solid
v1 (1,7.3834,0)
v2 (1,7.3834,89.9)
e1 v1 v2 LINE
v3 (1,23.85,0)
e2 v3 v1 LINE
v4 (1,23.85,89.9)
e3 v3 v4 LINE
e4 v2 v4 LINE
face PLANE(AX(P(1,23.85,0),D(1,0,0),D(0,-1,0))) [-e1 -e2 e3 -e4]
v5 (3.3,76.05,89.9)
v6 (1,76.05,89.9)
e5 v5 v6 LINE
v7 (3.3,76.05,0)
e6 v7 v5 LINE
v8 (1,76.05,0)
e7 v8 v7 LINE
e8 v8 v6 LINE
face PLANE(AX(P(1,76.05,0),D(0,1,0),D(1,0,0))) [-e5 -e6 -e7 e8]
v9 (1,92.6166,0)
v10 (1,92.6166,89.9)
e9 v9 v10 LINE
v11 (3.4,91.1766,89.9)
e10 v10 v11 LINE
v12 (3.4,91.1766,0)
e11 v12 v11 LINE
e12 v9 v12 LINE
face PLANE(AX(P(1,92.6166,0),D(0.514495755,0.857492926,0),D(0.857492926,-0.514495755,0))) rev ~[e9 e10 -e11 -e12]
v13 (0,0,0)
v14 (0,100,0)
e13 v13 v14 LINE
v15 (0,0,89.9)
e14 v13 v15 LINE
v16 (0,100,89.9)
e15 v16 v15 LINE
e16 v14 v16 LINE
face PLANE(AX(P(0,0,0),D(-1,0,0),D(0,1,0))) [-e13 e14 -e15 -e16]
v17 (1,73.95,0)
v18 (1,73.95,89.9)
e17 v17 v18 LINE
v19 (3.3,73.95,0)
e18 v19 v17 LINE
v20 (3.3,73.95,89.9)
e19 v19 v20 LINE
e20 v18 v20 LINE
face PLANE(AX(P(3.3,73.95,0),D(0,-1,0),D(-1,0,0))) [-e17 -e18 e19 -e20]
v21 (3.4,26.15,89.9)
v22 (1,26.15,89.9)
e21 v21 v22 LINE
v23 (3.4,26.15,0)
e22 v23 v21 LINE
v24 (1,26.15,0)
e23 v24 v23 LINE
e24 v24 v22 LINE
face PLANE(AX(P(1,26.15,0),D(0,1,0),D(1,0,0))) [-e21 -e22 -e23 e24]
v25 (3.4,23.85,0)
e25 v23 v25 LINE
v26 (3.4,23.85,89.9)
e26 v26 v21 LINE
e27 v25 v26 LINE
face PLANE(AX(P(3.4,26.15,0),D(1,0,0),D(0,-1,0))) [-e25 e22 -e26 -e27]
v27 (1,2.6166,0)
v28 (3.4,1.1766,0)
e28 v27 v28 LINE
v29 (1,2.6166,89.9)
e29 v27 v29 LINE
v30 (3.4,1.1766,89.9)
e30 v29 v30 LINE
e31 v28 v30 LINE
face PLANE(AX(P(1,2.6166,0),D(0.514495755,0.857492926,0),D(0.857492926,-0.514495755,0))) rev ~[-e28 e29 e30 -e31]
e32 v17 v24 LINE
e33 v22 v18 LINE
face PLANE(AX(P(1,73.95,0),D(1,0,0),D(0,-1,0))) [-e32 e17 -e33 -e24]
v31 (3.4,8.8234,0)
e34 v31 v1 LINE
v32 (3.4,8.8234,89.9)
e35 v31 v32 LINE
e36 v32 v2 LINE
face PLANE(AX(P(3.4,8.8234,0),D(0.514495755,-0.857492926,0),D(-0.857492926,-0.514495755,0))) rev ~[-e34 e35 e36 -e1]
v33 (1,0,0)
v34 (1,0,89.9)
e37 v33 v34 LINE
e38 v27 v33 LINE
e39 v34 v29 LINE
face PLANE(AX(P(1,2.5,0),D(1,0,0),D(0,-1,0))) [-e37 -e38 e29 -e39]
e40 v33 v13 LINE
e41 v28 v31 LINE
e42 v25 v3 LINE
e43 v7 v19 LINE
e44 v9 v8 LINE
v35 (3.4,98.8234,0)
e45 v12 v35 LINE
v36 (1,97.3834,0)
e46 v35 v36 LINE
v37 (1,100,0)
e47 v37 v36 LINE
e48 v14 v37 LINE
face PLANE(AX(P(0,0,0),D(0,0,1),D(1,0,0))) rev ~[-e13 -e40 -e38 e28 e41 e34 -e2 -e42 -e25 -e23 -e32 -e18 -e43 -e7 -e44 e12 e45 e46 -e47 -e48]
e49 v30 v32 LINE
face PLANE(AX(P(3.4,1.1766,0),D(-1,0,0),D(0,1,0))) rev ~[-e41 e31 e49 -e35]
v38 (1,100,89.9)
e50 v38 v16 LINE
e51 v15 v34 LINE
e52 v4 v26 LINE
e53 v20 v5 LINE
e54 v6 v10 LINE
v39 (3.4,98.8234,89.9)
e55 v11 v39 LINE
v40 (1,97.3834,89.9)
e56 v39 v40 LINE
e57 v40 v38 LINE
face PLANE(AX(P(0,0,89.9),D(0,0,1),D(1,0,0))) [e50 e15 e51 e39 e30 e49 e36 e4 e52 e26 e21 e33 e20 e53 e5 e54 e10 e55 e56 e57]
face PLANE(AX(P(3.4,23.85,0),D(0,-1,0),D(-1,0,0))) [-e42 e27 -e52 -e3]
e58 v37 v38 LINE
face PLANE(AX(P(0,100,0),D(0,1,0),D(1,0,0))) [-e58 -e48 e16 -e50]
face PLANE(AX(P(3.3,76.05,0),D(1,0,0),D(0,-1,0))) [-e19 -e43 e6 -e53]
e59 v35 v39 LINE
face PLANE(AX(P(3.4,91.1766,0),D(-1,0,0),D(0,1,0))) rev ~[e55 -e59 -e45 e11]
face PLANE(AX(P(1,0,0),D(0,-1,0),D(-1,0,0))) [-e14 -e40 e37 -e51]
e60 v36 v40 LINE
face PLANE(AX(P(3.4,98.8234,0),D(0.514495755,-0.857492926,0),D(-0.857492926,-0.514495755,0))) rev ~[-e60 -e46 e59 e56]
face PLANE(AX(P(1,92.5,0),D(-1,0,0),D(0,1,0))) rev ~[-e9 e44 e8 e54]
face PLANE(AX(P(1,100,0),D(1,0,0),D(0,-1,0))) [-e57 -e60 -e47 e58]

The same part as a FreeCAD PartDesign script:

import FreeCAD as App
import Part
import Sketcher

V = App.Vector


def add_polygon(sketch, points):
    """Adds a closed chain of lines whose ends are joined by coincident constraints."""
    first, n = sketch.GeometryCount, len(points)
    for a, b in zip(points, points[1:] + points[:1]):
        sketch.addGeometry(Part.LineSegment(App.Vector(*a, 0), App.Vector(*b, 0)), False)
    for i in range(n):
        sketch.addConstraint(Sketcher.Constraint("Coincident", first + i, 2, first + (i + 1) % n, 1))

doc = App.newDocument("Part")
params = doc.addObject("Spreadsheet::Sheet", "Params")
for row, (alias, value) in enumerate([
    ("sketch1_width", "1 mm"),
    ("sketch1_height", "100 mm"),
    ("sketch1_height2", "8 mm"),
    ("sketch1_height3", "2.5 mm"),
    ("pad1_length", "90 mm"),
    ("sketch2_width", "2.5 mm"),
    ("pad2_length", "90 mm"),
    ("sketch3_height", "8 mm"),
    ("pocket1_length", "90 mm"),
    ("sketch4_width", "1 mm"),
    ("sketch4_height", "100 mm"),
    ("sketch4_width2", "2.5 mm"),
    ("sketch4_height2", "47.5 mm"),
    ("pocket2_length", "0.1 mm"),
    ("sketch5_height", "0.2 mm"),
    ("sketch5_height2", "0.1 mm"),
    ("sketch5_width", "2.5 mm"),
], start=1):
    params.set(f"A{row}", alias)
    params.set(f"B{row}", "=" + value)
    params.setAlias(f"B{row}", alias)

body = doc.addObject("PartDesign::Body", "Body")

# Sketch on XY plane
sketch1 = body.newObject("Sketcher::SketchObject", "Sketch")
sketch1.AttachmentSupport = (doc.getObject("XY_Plane"), [""])
sketch1.MapMode = "FlatFace"
add_polygon(sketch1, [(0, 100), (0, 0), (1, 0), (1, 2.5), (3.5, 1), (3.5, 9), (1, 7.5), (1, 92.5), (3.5, 91), (3.5, 99), (1, 97.5), (1, 100)])  # lines 0-11
sketch1.addConstraint([
    Sketcher.Constraint("Vertical", 0),
    Sketcher.Constraint("Horizontal", 1),
    Sketcher.Constraint("Vertical", 2),
    Sketcher.Constraint("Vertical", 4),
    Sketcher.Constraint("Vertical", 6),
    Sketcher.Constraint("Vertical", 8),
    Sketcher.Constraint("Vertical", 10),
    Sketcher.Constraint("Horizontal", 11),
    Sketcher.Constraint("Coincident", 0, 2, -1, 1),
    Sketcher.Constraint("Parallel", 3, 7),
    Sketcher.Constraint("Parallel", 5, 9),
    Sketcher.Constraint("Vertical", 2, 2, 5, 2),
    Sketcher.Constraint("Vertical", 4, 2, 7, 2),
    Sketcher.Constraint("Vertical", 6, 2, 9, 2),
    Sketcher.Constraint("Equal", 4, 8),
    Sketcher.Constraint("Equal", 2, 10),
    Sketcher.Constraint("Equal", 3, 5),
    Sketcher.Constraint("DistanceX", 1, 1, 1, 2, 1.0),
    Sketcher.Constraint("DistanceY", 0, 2, 0, 1, 100.0),
    Sketcher.Constraint("DistanceY", 4, 1, 4, 2, 8.0),
    Sketcher.Constraint("DistanceY", 2, 1, 2, 2, 2.5),
    Sketcher.Constraint("DistanceY", -1, 1, 3, 2, 1.0),
    Sketcher.Constraint("DistanceX", 1, 2, 3, 2, 2.5),
])
sketch1.setExpression("Constraints[29]", "Params.sketch1_width")
sketch1.setExpression("Constraints[30]", "Params.sketch1_height")
sketch1.setExpression("Constraints[31]", "Params.sketch1_height2")
sketch1.setExpression("Constraints[32]", "Params.sketch1_height3")
pad1 = body.newObject("PartDesign::Pad", "Pad")
pad1.Profile = sketch1
pad1.setExpression("Length", "Params.pad1_length")

# Sketch on XY plane
sketch2 = body.newObject("Sketcher::SketchObject", "Sketch001")
sketch2.AttachmentSupport = (doc.getObject("XY_Plane"), [""])
sketch2.MapMode = "FlatFace"
add_polygon(sketch2, [(1, 26.2), (1, 23.8), (3.5, 23.8), (3.5, 26.2)])  # lines 0-3
add_polygon(sketch2, [(3.5, 76.2), (1, 76.2), (1, 73.8), (3.5, 73.8)])  # lines 4-7
sketch2.addConstraint([
    Sketcher.Constraint("Vertical", 0),
    Sketcher.Constraint("Horizontal", 1),
    Sketcher.Constraint("Vertical", 2),
    Sketcher.Constraint("Horizontal", 3),
    Sketcher.Constraint("Horizontal", 4),
    Sketcher.Constraint("Vertical", 5),
    Sketcher.Constraint("Horizontal", 6),
    Sketcher.Constraint("Vertical", 7),
    Sketcher.Constraint("Vertical", 3, 2, 4, 2),
    Sketcher.Constraint("Vertical", 2, 2, 6, 2),
    Sketcher.Constraint("Equal", 6, 0),
    Sketcher.Constraint("Equal", 2, 5),
    Sketcher.Constraint("DistanceX", 1, 1, 1, 2, 2.5),
    Sketcher.Constraint("DistanceX", -1, 1, 0, 2, 1.0),
    Sketcher.Constraint("DistanceY", 3, 2, 4, 2, 50.0),
    Sketcher.Constraint("DistanceY", -1, 1, 0, 2, 23.75),
])
sketch2.setExpression("Constraints[20]", "Params.sketch2_width")
pad2 = body.newObject("PartDesign::Pad", "Pad001")
pad2.Profile = sketch2
pad2.setExpression("Length", "Params.pad2_length")

# Sketch on XY plane
sketch3 = body.newObject("Sketcher::SketchObject", "Sketch002")
sketch3.AttachmentSupport = (doc.getObject("XY_Plane"), [""])
sketch3.MapMode = "FlatFace"
add_polygon(sketch3, [(1, 2.62), (1, 2.5), (3.5, 1), (3.5, 9), (1, 7.5), (1, 7.38), (3.4, 8.82), (3.4, 1.18)])  # lines 0-7
add_polygon(sketch3, [(3.5, 99), (1, 97.5), (1, 97.38), (3.4, 98.82), (3.4, 91.18), (1, 92.62), (1, 92.5), (3.5, 91)])  # lines 8-15
sketch3.addConstraint([
    Sketcher.Constraint("Vertical", 0),
    Sketcher.Constraint("Vertical", 2),
    Sketcher.Constraint("Vertical", 4),
    Sketcher.Constraint("Vertical", 6),
    Sketcher.Constraint("Vertical", 9),
    Sketcher.Constraint("Vertical", 11),
    Sketcher.Constraint("Vertical", 13),
    Sketcher.Constraint("Vertical", 15),
    Sketcher.Constraint("Parallel", 3, 5),
    Sketcher.Constraint("Parallel", 1, 7),
    Sketcher.Constraint("Parallel", 5, 8),
    Sketcher.Constraint("Parallel", 8, 10),
    Sketcher.Constraint("Parallel", 7, 12),
    Sketcher.Constraint("Parallel", 12, 14),
    Sketcher.Constraint("Vertical", 0, 2, 3, 2),
    Sketcher.Constraint("Vertical", 7, 2, 8, 2),
    Sketcher.Constraint("Vertical", 6, 2, 10, 2),
    Sketcher.Constraint("Vertical", 9, 2, 12, 2),
    Sketcher.Constraint("Vertical", 2, 2, 14, 2),
    Sketcher.Constraint("Equal", 0, 4),
    Sketcher.Constraint("Equal", 4, 9),
    Sketcher.Constraint("Equal", 6, 11),
    Sketcher.Constraint("Equal", 9, 13),
    Sketcher.Constraint("Equal", 1, 3),
    Sketcher.Constraint("DistanceY", 2, 1, 2, 2, 8.0),
    Sketcher.Constraint("DistanceX", -1, 1, 0, 2, 1.0),
    Sketcher.Constraint("DistanceY", -1, 1, 1, 2, 1.0),
    Sketcher.Constraint("DistanceY", 0, 2, 3, 2, 5.0),
    Sketcher.Constraint("DistanceX", 0, 2, 1, 2, 2.5),
    Sketcher.Constraint("DistanceX", 5, 2, 2, 2, 0.1),
    Sketcher.Constraint("DistanceY", -1, 1, 14, 2, 91.0),
    Sketcher.Constraint("DistanceY", 0, 2, 0, 1, 0.1166),
])
sketch3.setExpression("Constraints[40]", "Params.sketch3_height")
pocket1 = body.newObject("PartDesign::Pocket", "Pocket")
pocket1.Profile = sketch3
pocket1.setExpression("Length", "Params.pocket1_length")
pocket1.Reversed = True

# Sketch on XY plane
sketch4 = body.newObject("Sketcher::SketchObject", "Sketch003")
sketch4.AttachmentSupport = (doc.getObject("XY_Plane"), [""])
sketch4.MapMode = "FlatFace"
sketch4.AttachmentOffset = App.Placement(V(0, 0, 90), App.Rotation())
add_polygon(sketch4, [(3.4, 98.8), (1, 97.4), (1, 100), (0, 100), (0, 0), (1, 0), (1, 2.6), (3.4, 1.2), (3.4, 8.8), (1, 7.4), (1, 23.8), (3.5, 23.8), (3.5, 26.2), (1, 26.2), (1, 73.8), (3.5, 73.8), (3.5, 76.2), (1, 76.2), (1, 92.6), (3.4, 91.2)])  # lines 0-19
sketch4.addConstraint([
    Sketcher.Constraint("Vertical", 1),
    Sketcher.Constraint("Horizontal", 2),
    Sketcher.Constraint("Vertical", 3),
    Sketcher.Constraint("Horizontal", 4),
    Sketcher.Constraint("Vertical", 5),
    Sketcher.Constraint("Vertical", 7),
    Sketcher.Constraint("Vertical", 9),
    Sketcher.Constraint("Horizontal", 10),
    Sketcher.Constraint("Vertical", 11),
    Sketcher.Constraint("Horizontal", 12),
    Sketcher.Constraint("Vertical", 13),
    Sketcher.Constraint("Horizontal", 14),
    Sketcher.Constraint("Vertical", 15),
    Sketcher.Constraint("Horizontal", 16),
    Sketcher.Constraint("Vertical", 17),
    Sketcher.Constraint("Vertical", 19),
    Sketcher.Constraint("Coincident", 3, 2, -1, 1),
    Sketcher.Constraint("Parallel", 0, 8),
    Sketcher.Constraint("Parallel", 6, 18),
    Sketcher.Constraint("Vertical", 1, 2, 4, 2),
    Sketcher.Constraint("Vertical", 5, 2, 8, 2),
    Sketcher.Constraint("Vertical", 9, 2, 12, 2),
    Sketcher.Constraint("Vertical", 11, 2, 14, 2),
    Sketcher.Constraint("Vertical", 13, 2, 16, 2),
    Sketcher.Constraint("Vertical", 7, 2, 18, 2),
    Sketcher.Constraint("Equal", 1, 5),
    Sketcher.Constraint("Equal", 16, 11),
    Sketcher.Constraint("Equal", 11, 15),
    Sketcher.Constraint("Equal", 9, 17),
    Sketcher.Constraint("Equal", 7, 19),
    Sketcher.Constraint("Equal", 0, 6),
    Sketcher.Constraint("DistanceX", 2, 2, 2, 1, 1.0),
    Sketcher.Constraint("DistanceY", 3, 2, 3, 1, 100.0),
    Sketcher.Constraint("DistanceX", 10, 1, 10, 2, 2.5),
    Sketcher.Constraint("DistanceY", 13, 1, 13, 2, 47.5),
    Sketcher.Constraint("DistanceX", -1, 1, 6, 2, 3.4),
    Sketcher.Constraint("DistanceY", 6, 2, 5, 2, 1.44),
    Sketcher.Constraint("DistanceY", 7, 2, 0, 2, 88.56),
    Sketcher.Constraint("DistanceY", 1, 1, 1, 2, 2.6166),
])
sketch4.setExpression("Constraints[51]", "Params.sketch4_width")
sketch4.setExpression("Constraints[52]", "Params.sketch4_height")
sketch4.setExpression("Constraints[53]", "Params.sketch4_width2")
sketch4.setExpression("Constraints[54]", "Params.sketch4_height2")
pocket2 = body.newObject("PartDesign::Pocket", "Pocket001")
pocket2.Profile = sketch4
pocket2.setExpression("Length", "Params.pocket2_length")

# Sketch on XY plane
sketch5 = body.newObject("Sketcher::SketchObject", "Sketch004")
sketch5.AttachmentSupport = (doc.getObject("XY_Plane"), [""])
sketch5.MapMode = "FlatFace"
add_polygon(sketch5, [(1, 76.25), (3.5, 76.25), (3.5, 73.75), (1, 73.75), (1, 73.95), (3.3, 73.95), (3.3, 76.05), (1, 76.05)])  # lines 0-7
add_polygon(sketch5, [(1, 26.25), (3.5, 26.25), (3.5, 23.75), (1, 23.75), (1, 23.85), (3.4, 23.85), (3.4, 26.15), (1, 26.15)])  # lines 8-15
sketch5.addConstraint([
    Sketcher.Constraint("Horizontal", 0),
    Sketcher.Constraint("Vertical", 1),
    Sketcher.Constraint("Horizontal", 2),
    Sketcher.Constraint("Vertical", 3),
    Sketcher.Constraint("Horizontal", 4),
    Sketcher.Constraint("Vertical", 5),
    Sketcher.Constraint("Horizontal", 6),
    Sketcher.Constraint("Vertical", 7),
    Sketcher.Constraint("Horizontal", 8),
    Sketcher.Constraint("Vertical", 9),
    Sketcher.Constraint("Horizontal", 10),
    Sketcher.Constraint("Vertical", 11),
    Sketcher.Constraint("Horizontal", 12),
    Sketcher.Constraint("Vertical", 13),
    Sketcher.Constraint("Horizontal", 14),
    Sketcher.Constraint("Vertical", 15),
    Sketcher.Constraint("Vertical", 3, 2, 6, 2),
    Sketcher.Constraint("Vertical", 1, 2, 8, 2),
    Sketcher.Constraint("Vertical", 7, 2, 10, 2),
    Sketcher.Constraint("Vertical", 11, 2, 14, 2),
    Sketcher.Constraint("Equal", 10, 1),
    Sketcher.Constraint("Equal", 3, 7),
    Sketcher.Constraint("Equal", 1, 9),
    Sketcher.Constraint("Equal", 6, 13),
    Sketcher.Constraint("Equal", 11, 15),
    Sketcher.Constraint("DistanceY", 3, 1, 3, 2, 0.2),
    Sketcher.Constraint("DistanceY", 11, 1, 11, 2, 0.1),
    Sketcher.Constraint("DistanceX", 12, 2, 9, 2, 0.1),
    Sketcher.Constraint("DistanceX", 0, 1, 0, 2, 2.5),
    Sketcher.Constraint("DistanceX", -1, 1, 2, 2, 1.0),
    Sketcher.Constraint("DistanceY", 9, 2, 1, 2, 50.0),
    Sketcher.Constraint("DistanceY", -1, 1, 0, 2, 76.25),
])
sketch5.setExpression("Constraints[41]", "Params.sketch5_height")
sketch5.setExpression("Constraints[42]", "Params.sketch5_height2")
sketch5.setExpression("Constraints[44]", "Params.sketch5_width")
pocket3 = body.newObject("PartDesign::Pocket", "Pocket002")
pocket3.Profile = sketch5
pocket3.Type = "ThroughAll"
pocket3.Reversed = True

doc.recompute()
